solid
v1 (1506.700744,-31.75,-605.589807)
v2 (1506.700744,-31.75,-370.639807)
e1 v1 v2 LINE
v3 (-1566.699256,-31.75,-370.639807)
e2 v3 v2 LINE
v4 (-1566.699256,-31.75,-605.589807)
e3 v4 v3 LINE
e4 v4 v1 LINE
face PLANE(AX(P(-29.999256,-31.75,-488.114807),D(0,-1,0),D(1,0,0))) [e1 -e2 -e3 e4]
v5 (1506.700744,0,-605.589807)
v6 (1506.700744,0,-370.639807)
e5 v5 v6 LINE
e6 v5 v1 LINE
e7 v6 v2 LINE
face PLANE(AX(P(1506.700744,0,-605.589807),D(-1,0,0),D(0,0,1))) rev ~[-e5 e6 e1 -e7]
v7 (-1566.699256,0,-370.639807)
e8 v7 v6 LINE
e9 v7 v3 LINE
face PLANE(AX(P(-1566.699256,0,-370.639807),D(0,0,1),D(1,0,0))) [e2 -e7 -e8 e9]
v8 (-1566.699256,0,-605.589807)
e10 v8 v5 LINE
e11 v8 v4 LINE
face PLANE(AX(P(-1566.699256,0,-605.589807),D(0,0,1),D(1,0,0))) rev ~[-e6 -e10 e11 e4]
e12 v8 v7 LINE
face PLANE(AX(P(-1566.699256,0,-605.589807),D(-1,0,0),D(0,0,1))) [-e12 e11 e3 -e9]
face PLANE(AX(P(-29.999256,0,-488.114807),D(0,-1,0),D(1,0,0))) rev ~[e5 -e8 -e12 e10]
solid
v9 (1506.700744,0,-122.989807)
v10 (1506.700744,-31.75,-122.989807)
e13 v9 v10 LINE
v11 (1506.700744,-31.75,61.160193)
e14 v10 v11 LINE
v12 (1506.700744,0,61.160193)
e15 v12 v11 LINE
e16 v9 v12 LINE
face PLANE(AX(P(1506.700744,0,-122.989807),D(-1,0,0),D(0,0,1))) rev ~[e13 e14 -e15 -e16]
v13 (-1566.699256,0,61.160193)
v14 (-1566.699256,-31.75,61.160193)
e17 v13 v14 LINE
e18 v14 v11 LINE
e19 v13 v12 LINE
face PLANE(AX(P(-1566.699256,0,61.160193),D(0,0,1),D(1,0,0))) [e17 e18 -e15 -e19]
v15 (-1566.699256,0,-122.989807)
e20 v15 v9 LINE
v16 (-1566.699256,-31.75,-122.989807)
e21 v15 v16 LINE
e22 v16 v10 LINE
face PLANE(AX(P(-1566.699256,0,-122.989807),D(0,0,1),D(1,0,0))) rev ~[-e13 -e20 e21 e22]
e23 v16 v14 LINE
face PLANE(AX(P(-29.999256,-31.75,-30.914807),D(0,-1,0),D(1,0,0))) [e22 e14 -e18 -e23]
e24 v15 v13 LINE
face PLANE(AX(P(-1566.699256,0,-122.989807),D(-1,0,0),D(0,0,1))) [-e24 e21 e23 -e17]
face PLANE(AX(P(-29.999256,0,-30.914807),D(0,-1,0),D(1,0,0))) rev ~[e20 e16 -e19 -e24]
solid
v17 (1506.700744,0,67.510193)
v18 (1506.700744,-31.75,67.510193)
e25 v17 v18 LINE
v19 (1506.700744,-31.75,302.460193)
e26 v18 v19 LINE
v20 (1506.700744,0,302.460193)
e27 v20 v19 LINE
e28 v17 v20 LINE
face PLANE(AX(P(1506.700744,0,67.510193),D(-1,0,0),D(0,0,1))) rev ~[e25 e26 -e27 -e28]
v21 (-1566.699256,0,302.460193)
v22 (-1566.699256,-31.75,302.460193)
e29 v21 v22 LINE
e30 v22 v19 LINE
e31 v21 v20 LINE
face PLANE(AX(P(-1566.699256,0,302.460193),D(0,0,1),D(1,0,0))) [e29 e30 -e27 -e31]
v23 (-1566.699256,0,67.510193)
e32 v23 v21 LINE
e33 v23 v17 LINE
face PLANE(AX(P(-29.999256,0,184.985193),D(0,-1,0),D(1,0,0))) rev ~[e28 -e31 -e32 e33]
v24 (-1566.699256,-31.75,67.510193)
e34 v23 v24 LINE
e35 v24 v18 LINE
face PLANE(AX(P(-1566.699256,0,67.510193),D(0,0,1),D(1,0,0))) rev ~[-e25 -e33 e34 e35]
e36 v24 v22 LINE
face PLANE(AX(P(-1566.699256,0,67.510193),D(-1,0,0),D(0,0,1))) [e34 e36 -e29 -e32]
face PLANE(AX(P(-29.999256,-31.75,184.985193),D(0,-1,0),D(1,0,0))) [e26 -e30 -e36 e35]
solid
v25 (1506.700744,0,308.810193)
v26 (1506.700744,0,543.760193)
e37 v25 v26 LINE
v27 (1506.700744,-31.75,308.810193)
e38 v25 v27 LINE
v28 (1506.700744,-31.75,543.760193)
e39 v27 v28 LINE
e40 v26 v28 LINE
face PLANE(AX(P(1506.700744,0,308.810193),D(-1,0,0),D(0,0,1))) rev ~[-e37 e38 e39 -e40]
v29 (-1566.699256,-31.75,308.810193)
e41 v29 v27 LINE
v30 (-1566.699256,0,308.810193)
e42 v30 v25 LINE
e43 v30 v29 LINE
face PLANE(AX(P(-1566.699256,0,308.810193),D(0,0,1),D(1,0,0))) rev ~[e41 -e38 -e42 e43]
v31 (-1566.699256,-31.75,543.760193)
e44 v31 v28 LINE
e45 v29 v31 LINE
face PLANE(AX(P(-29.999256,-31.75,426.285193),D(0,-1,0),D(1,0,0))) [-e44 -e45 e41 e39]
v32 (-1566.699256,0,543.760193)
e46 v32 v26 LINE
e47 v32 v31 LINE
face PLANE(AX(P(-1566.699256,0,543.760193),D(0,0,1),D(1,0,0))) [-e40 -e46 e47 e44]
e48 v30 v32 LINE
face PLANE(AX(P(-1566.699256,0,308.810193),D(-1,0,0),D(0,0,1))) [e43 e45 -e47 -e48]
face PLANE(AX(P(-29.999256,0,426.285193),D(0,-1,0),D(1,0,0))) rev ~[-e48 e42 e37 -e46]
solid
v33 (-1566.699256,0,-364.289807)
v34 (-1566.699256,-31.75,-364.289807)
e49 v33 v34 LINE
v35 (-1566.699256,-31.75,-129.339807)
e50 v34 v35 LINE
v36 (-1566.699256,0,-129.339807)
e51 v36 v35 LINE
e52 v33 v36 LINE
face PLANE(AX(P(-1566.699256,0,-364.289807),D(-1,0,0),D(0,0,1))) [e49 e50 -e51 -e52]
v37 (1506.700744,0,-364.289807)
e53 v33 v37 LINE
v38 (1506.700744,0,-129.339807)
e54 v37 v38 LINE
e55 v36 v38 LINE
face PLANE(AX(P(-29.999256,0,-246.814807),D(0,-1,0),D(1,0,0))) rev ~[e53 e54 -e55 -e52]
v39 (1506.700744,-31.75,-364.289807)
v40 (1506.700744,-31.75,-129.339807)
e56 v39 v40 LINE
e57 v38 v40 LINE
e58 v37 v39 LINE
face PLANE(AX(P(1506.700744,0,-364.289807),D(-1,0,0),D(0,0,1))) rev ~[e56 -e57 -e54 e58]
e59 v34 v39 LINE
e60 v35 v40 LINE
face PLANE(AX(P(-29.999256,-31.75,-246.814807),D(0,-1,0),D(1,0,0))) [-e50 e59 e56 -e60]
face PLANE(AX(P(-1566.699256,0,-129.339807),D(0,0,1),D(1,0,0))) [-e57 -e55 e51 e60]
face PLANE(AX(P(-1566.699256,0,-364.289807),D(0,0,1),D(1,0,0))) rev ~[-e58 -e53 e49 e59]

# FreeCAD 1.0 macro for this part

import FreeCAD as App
import Part
import Sketcher
from FreeCAD import Vector
Q = App.Units.Quantity


def add_polygon(sketch, points):
    """Adds a closed chain of lines whose ends are joined by coincident constraints."""
    first, n = sketch.GeometryCount, len(points)
    for a, b in zip(points, points[1:] + points[:1]):
        sketch.addGeometry(Part.LineSegment(App.Vector(*a, 0), App.Vector(*b, 0)), False)
    for i in range(n):
        sketch.addConstraint(Sketcher.Constraint("Coincident", first + i, 2, first + (i + 1) % n, 1))

doc = App.newDocument("Part")
params = doc.addObject("Spreadsheet::Sheet", "Params")
for row, (alias, value) in enumerate([
    ("sketch1_width", "121 in"),
    ("sketch1_height", "7.25 in"),
    ("pad1_length", "1.25 in"),
], start=1):
    params.set(f"A{row}", alias)
    params.set(f"B{row}", "=" + value)
    params.setAlias(f"B{row}", alias)

body = doc.addObject("PartDesign::Body", "Body")
body.AllowCompound = True

# Sketch on XZ plane
sketch1 = body.newObject("Sketcher::SketchObject", "Sketch")
sketch1.AttachmentSupport = (doc.getObject("XZ_Plane"), [""])
sketch1.MapMode = "FlatFace"
add_polygon(sketch1, [(-1567, 61), (-1567, -123), (1507, -123), (1507, 61)])  # lines 0-3
add_polygon(sketch1, [(-1567, -129), (-1567, -364), (1507, -364), (1507, -129)])  # lines 4-7
add_polygon(sketch1, [(-1567, -371), (-1567, -606), (1507, -606), (1507, -371)])  # lines 8-11
add_polygon(sketch1, [(-1567, 302), (-1567, 68), (1507, 68), (1507, 302)])  # lines 12-15
add_polygon(sketch1, [(-1567, 544), (-1567, 309), (1507, 309), (1507, 544)])  # lines 16-19
sketch1.addConstraint(Sketcher.Constraint("Vertical", 0))
sketch1.addConstraint(Sketcher.Constraint("Horizontal", 1))
sketch1.addConstraint(Sketcher.Constraint("Vertical", 2))
sketch1.addConstraint(Sketcher.Constraint("Horizontal", 3))
sketch1.addConstraint(Sketcher.Constraint("Vertical", 4))
sketch1.addConstraint(Sketcher.Constraint("Horizontal", 5))
sketch1.addConstraint(Sketcher.Constraint("Vertical", 6))
sketch1.addConstraint(Sketcher.Constraint("Horizontal", 7))
sketch1.addConstraint(Sketcher.Constraint("Vertical", 8))
sketch1.addConstraint(Sketcher.Constraint("Horizontal", 9))
sketch1.addConstraint(Sketcher.Constraint("Vertical", 10))
sketch1.addConstraint(Sketcher.Constraint("Horizontal", 11))
sketch1.addConstraint(Sketcher.Constraint("Vertical", 12))
sketch1.addConstraint(Sketcher.Constraint("Horizontal", 13))
sketch1.addConstraint(Sketcher.Constraint("Vertical", 14))
sketch1.addConstraint(Sketcher.Constraint("Horizontal", 15))
sketch1.addConstraint(Sketcher.Constraint("Vertical", 16))
sketch1.addConstraint(Sketcher.Constraint("Horizontal", 17))
sketch1.addConstraint(Sketcher.Constraint("Vertical", 18))
sketch1.addConstraint(Sketcher.Constraint("Horizontal", 19))
sketch1.addConstraint(Sketcher.Constraint("Vertical", 3, 2, 4, 2))
sketch1.addConstraint(Sketcher.Constraint("Vertical", 2, 2, 5, 2))
sketch1.addConstraint(Sketcher.Constraint("Vertical", 7, 2, 8, 2))
sketch1.addConstraint(Sketcher.Constraint("Vertical", 6, 2, 9, 2))
sketch1.addConstraint(Sketcher.Constraint("Vertical", 11, 2, 12, 2))
sketch1.addConstraint(Sketcher.Constraint("Vertical", 10, 2, 13, 2))
sketch1.addConstraint(Sketcher.Constraint("Vertical", 15, 2, 16, 2))
sketch1.addConstraint(Sketcher.Constraint("Vertical", 14, 2, 17, 2))
sketch1.addConstraint(Sketcher.Constraint("Equal", 6, 8))
sketch1.addConstraint(Sketcher.Constraint("Equal", 10, 12))
sketch1.addConstraint(Sketcher.Constraint("Equal", 14, 16))
sketch1.addConstraint(Sketcher.Constraint("DistanceX", 1, 1, 1, 2, Q("121 in")))
sketch1.addConstraint(Sketcher.Constraint("DistanceY", 8, 2, 0, 2, Q("19 in")))
sketch1.addConstraint(Sketcher.Constraint("DistanceY", 10, 2, 2, 2, Q("17 in")))
sketch1.addConstraint(Sketcher.Constraint("DistanceY", 4, 2, 12, 2, Q("17 in")))
sketch1.addConstraint(Sketcher.Constraint("DistanceY", 0, 2, 16, 2, Q("17 in")))
sketch1.addConstraint(Sketcher.Constraint("DistanceY", 0, 2, 0, 1, Q("7.25 in")))
sketch1.addConstraint(Sketcher.Constraint("DistanceY", 4, 2, 0, 2, Q("9.5 in")))
sketch1.addConstraint(Sketcher.Constraint("DistanceX", 0, 2, -1, 1, 1566.699256))
sketch1.addConstraint(Sketcher.Constraint("DistanceY", 0, 2, -1, 1, 122.989807))
sketch1.setExpression("Constraints[51]", "Params.sketch1_width")
sketch1.setExpression("Constraints[56]", "Params.sketch1_height")
pad1 = body.newObject("PartDesign::Pad", "Pad")
pad1.Profile = sketch1
pad1.setExpression("Length", "Params.pad1_length")

doc.recompute()
